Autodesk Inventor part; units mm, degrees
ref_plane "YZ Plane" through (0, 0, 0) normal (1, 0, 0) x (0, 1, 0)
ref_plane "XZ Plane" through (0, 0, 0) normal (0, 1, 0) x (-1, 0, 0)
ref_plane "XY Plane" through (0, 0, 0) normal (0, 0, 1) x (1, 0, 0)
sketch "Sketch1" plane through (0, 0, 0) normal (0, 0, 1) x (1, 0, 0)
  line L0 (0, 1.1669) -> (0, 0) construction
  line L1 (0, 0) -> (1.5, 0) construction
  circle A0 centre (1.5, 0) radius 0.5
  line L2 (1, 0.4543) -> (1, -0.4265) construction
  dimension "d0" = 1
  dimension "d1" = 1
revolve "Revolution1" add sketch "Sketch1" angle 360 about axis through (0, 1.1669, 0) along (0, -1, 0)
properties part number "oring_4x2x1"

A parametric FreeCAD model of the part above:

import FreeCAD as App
import Part
import Sketcher
Q = App.Units.Quantity

doc = App.newDocument("Part")
body = doc.addObject("PartDesign::Body", "Body")

# Sketch on XY plane
sketch1 = doc.addObject("Sketcher::SketchObject", "Sketch")
body.addObject(sketch1)
sketch1.AttachmentSupport = (doc.XY_Plane, [""])
sketch1.MapMode = "FlatFace"
sketch1.addGeometry(Part.Circle(App.Vector(1.5, 0, 0), App.Vector(0, 0, 1), 0.5), False)
sketch1.addConstraint([
    Sketcher.Constraint("PointOnObject", 0, 3, -1),
    Sketcher.Constraint("Diameter", 0, Q("1 mm")),
    Sketcher.Constraint("DistanceX", -1, 1, 0, 3, Q("1.5 mm")),
])
revolution = doc.addObject("PartDesign::Revolution", "Revolution")
body.addObject(revolution)
revolution.Profile = sketch1
revolution.ReferenceAxis = (sketch1, ["V_Axis"])
revolution.Angle = 360

doc.recompute()
